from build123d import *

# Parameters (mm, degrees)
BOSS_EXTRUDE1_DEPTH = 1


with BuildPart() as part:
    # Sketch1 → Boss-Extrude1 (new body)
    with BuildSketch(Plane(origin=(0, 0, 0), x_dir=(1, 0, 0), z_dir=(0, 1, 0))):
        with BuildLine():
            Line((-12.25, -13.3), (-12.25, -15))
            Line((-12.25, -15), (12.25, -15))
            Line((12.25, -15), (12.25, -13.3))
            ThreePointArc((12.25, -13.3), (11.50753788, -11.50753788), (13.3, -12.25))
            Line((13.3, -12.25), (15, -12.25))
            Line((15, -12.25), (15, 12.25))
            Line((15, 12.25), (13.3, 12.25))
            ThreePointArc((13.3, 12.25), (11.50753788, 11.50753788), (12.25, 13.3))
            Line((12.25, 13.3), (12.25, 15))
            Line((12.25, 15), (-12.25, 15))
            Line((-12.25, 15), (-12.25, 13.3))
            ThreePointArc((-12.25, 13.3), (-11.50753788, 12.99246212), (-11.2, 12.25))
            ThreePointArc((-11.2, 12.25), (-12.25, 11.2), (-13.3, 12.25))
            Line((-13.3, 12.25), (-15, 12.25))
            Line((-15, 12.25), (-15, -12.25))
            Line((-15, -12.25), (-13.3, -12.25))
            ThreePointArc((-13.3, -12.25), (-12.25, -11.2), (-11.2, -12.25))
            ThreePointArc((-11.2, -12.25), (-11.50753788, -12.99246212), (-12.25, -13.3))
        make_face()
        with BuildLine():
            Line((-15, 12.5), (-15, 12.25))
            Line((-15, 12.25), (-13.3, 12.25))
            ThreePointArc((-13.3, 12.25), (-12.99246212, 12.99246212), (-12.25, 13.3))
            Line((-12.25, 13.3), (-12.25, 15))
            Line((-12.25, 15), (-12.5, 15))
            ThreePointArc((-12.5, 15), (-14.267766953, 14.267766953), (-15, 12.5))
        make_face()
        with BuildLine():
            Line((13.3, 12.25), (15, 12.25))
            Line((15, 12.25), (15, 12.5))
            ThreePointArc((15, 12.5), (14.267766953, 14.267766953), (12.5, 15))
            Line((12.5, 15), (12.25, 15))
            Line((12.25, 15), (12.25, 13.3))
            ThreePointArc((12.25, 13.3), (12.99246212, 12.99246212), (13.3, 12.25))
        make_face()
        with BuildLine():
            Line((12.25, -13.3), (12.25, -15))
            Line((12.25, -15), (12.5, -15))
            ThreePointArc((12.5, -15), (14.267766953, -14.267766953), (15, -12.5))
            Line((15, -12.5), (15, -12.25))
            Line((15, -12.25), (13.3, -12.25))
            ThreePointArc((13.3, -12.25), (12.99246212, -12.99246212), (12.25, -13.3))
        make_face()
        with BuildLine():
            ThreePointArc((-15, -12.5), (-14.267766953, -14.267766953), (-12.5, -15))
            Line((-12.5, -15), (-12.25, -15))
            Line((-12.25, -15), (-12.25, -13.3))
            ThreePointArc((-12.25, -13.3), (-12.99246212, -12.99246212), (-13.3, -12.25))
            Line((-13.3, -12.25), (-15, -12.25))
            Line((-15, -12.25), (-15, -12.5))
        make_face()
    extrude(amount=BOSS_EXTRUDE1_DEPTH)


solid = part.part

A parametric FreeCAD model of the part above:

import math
import FreeCAD as App
import Part
import Sketcher

V = App.Vector
Q = App.Units.Quantity

doc = App.newDocument("Part")
body = doc.addObject("PartDesign::Body", "Body")

sketch1 = doc.addObject("Sketcher::SketchObject", "Sketch")
body.addObject(sketch1)
sketch1.AttachmentSupport = (doc.XZ_Plane, [""])
sketch1.MapMode = "FlatFace"
sketch1.addGeometry([
    Part.ArcOfCircle(Part.Circle(V(12.5, 12.5, 0), V(0, 0, 1), 2.5), math.radians(0), math.radians(90)),
    Part.LineSegment(V(15, 12.5, 0), V(15, -12.5, 0)),
    Part.ArcOfCircle(Part.Circle(V(12.5, -12.5, 0), V(0, 0, 1), 2.5), math.radians(-90), math.radians(0)),
    Part.LineSegment(V(12.5, -15, 0), V(-12.5, -15, 0)),
    Part.ArcOfCircle(Part.Circle(V(-12.5, -12.5, 0), V(0, 0, 1), 2.5), math.radians(180), math.radians(270)),
    Part.LineSegment(V(-15, -12.5, 0), V(-15, 12.5, 0)),
    Part.ArcOfCircle(Part.Circle(V(-12.5, 12.5, 0), V(0, 0, 1), 2.5), math.radians(90), math.radians(180)),
    Part.LineSegment(V(-12.5, 15, 0), V(12.5, 15, 0)),
    Part.ArcOfCircle(Part.Circle(V(-12.2, 12.2, 0), V(0, 0, 1), 1.1), math.radians(180), math.radians(360)),
    Part.ArcOfCircle(Part.Circle(V(-12.3, 12.2, 0), V(0, 0, 1), 1.1), math.radians(0), math.radians(90)),
    Part.ArcOfCircle(Part.Circle(V(-12.2, 12.2, 0), V(0, 0, 1), 1.1), math.radians(90), math.radians(180)),
    Part.ArcOfCircle(Part.Circle(V(12.2, 12.2, 0), V(0, 0, 1), 1.1), math.radians(90), math.radians(360)),
    Part.ArcOfCircle(Part.Circle(V(12.2, 12.2, 0), V(0, 0, 1), 1.1), math.radians(0), math.radians(90)),
    Part.ArcOfCircle(Part.Circle(V(12.2, -12.2, 0), V(0, 0, 1), 1.1), math.radians(0), math.radians(270)),
    Part.ArcOfCircle(Part.Circle(V(12.2, -12.2, 0), V(0, 0, 1), 1.1), math.radians(-90), math.radians(0)),
    Part.ArcOfCircle(Part.Circle(V(-12.3, -12.2, 0), V(0, 0, 1), 1.1), math.radians(-90), math.radians(0)),
    Part.ArcOfCircle(Part.Circle(V(-12.2, -12.2, 0), V(0, 0, 1), 1.1), math.radians(0), math.radians(180)),
    Part.ArcOfCircle(Part.Circle(V(-12.2, -12.2, 0), V(0, 0, 1), 1.1), math.radians(-180), math.radians(-90)),
], False)
sketch1.addConstraint([
    Sketcher.Constraint("Tangent", 0, 1, 1, 1),
    Sketcher.Constraint("Tangent", 1, 2, 2, 2),
    Sketcher.Constraint("Tangent", 2, 1, 3, 1),
    Sketcher.Constraint("Tangent", 3, 2, 4, 2),
    Sketcher.Constraint("Tangent", 4, 1, 5, 1),
    Sketcher.Constraint("Tangent", 5, 2, 6, 2),
    Sketcher.Constraint("Tangent", 6, 1, 7, 1),
    Sketcher.Constraint("Tangent", 7, 2, 0, 2),
    Sketcher.Constraint("Tangent", 8, 2, 9, 1),
    Sketcher.Constraint("Tangent", 9, 2, 10, 1),
    Sketcher.Constraint("Tangent", 10, 2, 8, 1),
    Sketcher.Constraint("Tangent", 11, 1, 12, 2),
    Sketcher.Constraint("Coincident", 12, 1, 11, 2),
    Sketcher.Constraint("Tangent", 13, 1, 14, 2),
    Sketcher.Constraint("Coincident", 14, 1, 13, 2),
    Sketcher.Constraint("Tangent", 15, 2, 16, 1),
    Sketcher.Constraint("Tangent", 16, 2, 17, 1),
    Sketcher.Constraint("Tangent", 17, 2, 15, 1),
    Sketcher.Constraint("Vertical", 1),
    Sketcher.Constraint("Horizontal", 3),
    Sketcher.Constraint("Vertical", 5),
    Sketcher.Constraint("Horizontal", 7),
    Sketcher.Constraint("Equal", 0, 2),
    Sketcher.Constraint("Equal", 2, 4),
    Sketcher.Constraint("Equal", 4, 6),
    Sketcher.Constraint("Equal", 10, 11),
    Sketcher.Constraint("Equal", 12, 13),
    Sketcher.Constraint("Equal", 14, 15),
    Sketcher.Constraint("Symmetric", 0, 3, 4, 3, -1, 1),
    Sketcher.Constraint("Symmetric", 8, 3, 13, 3, -1, 1),
    Sketcher.Constraint("Symmetric", 11, 3, 15, 3, -1, 1),
    Sketcher.Constraint("Symmetric", 8, 3, 11, 3, -2),
    Sketcher.Constraint("Horizontal", 12, 3, 8, 2),
    Sketcher.Constraint("Horizontal", 8, 2, 10, 2),
    Sketcher.Constraint("Horizontal", 10, 2, 12, 1),
    Sketcher.Constraint("Horizontal", 17, 3, 13, 1),
    Sketcher.Constraint("Horizontal", 13, 1, 15, 2),
    Sketcher.Constraint("Horizontal", 15, 2, 16, 2),
    Sketcher.Constraint("Vertical", 17, 3, 9, 2),
    Sketcher.Constraint("Vertical", 14, 3, 11, 1),
    Sketcher.Constraint("Vertical", 11, 1, 14, 1),
    Sketcher.Constraint("Vertical", 9, 2, 17, 2),
    Sketcher.Constraint("Equal", 7, 1),
    Sketcher.Constraint("Radius", 0, Q("2.5 mm")),
    Sketcher.Constraint("DistanceX", 3, 2, 3, 1, Q("25 mm")),
    Sketcher.Constraint("Radius", 8, Q("1.05 mm")),
    Sketcher.Constraint("DistanceX", 8, 2, -1, 1, Q("11.2 mm")),
    Sketcher.Constraint("DistanceY", -1, 1, 9, 2, Q("13.3 mm")),
])
pad1 = doc.addObject("PartDesign::Pad", "Pad")
body.addObject(pad1)
pad1.Profile = sketch1
pad1.Length = 1
pad1.Reversed = True

doc.recompute()
